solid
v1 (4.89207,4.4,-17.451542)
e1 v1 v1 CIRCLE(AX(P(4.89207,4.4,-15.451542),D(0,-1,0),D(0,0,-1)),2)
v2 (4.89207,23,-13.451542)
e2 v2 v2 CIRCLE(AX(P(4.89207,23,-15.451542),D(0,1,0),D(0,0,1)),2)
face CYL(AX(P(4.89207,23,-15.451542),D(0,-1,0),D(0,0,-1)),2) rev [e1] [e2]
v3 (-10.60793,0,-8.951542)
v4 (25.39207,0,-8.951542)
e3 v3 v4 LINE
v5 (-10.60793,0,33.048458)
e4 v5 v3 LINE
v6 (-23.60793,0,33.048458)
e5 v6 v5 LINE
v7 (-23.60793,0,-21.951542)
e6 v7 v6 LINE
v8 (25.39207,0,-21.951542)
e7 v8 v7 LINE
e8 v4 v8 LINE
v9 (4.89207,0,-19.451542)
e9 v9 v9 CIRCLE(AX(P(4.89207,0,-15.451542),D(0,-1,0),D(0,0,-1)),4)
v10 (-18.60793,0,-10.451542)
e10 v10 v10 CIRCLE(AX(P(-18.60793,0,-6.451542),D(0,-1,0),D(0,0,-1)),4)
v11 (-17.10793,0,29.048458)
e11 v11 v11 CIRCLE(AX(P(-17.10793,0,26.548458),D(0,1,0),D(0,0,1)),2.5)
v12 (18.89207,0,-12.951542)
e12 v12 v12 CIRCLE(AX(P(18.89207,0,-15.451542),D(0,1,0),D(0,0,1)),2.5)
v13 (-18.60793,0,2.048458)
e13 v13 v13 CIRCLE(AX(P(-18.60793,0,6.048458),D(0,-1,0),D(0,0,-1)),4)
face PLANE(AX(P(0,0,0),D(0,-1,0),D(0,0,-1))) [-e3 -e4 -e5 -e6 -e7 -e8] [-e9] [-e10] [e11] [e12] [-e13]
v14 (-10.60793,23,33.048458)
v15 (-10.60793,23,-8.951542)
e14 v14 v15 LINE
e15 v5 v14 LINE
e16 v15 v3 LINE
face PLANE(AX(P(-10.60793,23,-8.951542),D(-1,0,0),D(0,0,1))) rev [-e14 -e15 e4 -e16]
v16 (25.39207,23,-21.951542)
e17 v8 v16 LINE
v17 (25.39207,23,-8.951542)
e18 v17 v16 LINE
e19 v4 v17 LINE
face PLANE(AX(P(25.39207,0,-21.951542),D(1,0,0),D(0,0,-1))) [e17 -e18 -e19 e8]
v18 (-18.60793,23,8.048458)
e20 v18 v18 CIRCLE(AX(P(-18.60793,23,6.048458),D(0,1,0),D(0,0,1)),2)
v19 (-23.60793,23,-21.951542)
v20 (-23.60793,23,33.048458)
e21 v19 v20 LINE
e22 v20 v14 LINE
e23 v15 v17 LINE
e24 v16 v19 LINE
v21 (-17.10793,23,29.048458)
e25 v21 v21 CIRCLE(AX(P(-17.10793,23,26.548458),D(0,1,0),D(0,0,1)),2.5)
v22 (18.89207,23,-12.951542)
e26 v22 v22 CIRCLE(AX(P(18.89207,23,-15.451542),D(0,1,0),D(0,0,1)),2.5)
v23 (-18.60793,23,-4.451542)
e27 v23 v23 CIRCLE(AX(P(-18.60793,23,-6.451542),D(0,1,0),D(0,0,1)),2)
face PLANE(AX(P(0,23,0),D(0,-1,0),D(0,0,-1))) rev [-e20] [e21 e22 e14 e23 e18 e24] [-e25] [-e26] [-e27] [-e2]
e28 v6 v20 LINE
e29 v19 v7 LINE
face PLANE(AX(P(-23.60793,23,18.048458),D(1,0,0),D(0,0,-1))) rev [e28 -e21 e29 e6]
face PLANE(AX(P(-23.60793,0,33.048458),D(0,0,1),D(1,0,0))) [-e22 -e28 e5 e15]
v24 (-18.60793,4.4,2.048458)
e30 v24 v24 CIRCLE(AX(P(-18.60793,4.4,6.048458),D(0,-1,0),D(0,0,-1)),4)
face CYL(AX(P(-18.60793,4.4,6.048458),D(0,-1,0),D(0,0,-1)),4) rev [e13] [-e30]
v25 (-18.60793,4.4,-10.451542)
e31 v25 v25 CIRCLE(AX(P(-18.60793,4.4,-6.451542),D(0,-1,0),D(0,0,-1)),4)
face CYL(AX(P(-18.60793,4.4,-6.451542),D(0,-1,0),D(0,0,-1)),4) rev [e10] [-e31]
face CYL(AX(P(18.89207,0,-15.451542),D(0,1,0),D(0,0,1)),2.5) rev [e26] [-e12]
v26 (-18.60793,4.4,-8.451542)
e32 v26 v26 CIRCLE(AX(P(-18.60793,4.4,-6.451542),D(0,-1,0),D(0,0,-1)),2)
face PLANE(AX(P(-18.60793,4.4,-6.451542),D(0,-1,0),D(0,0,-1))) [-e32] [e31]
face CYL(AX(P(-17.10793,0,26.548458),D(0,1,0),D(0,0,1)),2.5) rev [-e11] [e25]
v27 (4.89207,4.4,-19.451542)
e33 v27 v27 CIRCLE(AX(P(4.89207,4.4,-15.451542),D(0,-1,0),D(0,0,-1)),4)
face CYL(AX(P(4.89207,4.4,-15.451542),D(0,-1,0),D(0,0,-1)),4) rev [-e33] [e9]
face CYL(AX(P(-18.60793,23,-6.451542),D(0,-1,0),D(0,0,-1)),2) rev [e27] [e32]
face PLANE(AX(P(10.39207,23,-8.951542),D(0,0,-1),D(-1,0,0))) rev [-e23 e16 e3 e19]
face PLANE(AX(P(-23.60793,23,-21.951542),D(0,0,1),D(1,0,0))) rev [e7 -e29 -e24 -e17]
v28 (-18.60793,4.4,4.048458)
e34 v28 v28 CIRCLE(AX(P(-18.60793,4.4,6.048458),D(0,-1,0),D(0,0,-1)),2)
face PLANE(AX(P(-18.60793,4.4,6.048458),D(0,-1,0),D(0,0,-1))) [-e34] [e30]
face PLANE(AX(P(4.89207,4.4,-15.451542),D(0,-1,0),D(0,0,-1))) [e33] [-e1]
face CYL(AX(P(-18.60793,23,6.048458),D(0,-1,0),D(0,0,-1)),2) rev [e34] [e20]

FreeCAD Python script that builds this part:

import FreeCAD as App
import Part
import Sketcher

V = App.Vector


def add_polygon(sketch, points):
    """Adds a closed chain of lines whose ends are joined by coincident constraints."""
    first, n = sketch.GeometryCount, len(points)
    for a, b in zip(points, points[1:] + points[:1]):
        sketch.addGeometry(Part.LineSegment(App.Vector(*a, 0), App.Vector(*b, 0)), False)
    for i in range(n):
        sketch.addConstraint(Sketcher.Constraint("Coincident", first + i, 2, first + (i + 1) % n, 1))

doc = App.newDocument("Part")
body = doc.addObject("PartDesign::Body", "Body")

sketch1 = body.newObject("Sketcher::SketchObject", "Sketch")
sketch1.AttachmentSupport = (doc.getObject("XZ_Plane"), [""])
sketch1.MapMode = "FlatFace"
add_polygon(sketch1, [(-23.6, -22), (-23.6, 18), (-10.6, 18), (-10.6, -9), (10.4, -9), (10.4, -22)])
sketch1.addGeometry(Part.Circle(V(-18.6, 6, 0), V(0, 0, 1), 2), False)
sketch1.addGeometry(Part.Circle(V(4.9, -15.5, 0), V(0, 0, 1), 2), False)
sketch1.addGeometry(Part.Circle(V(-18.6, -6.5, 0), V(0, 0, 1), 2), False)
sketch1.addConstraint([
    Sketcher.Constraint("Vertical", 0),
    Sketcher.Constraint("Horizontal", 1),
    Sketcher.Constraint("Vertical", 2),
    Sketcher.Constraint("Horizontal", 3),
    Sketcher.Constraint("Vertical", 4),
    Sketcher.Constraint("Horizontal", 5),
    Sketcher.Constraint("Equal", 6, 7),
    Sketcher.Constraint("Equal", 7, 8),
    Sketcher.Constraint("Vertical", 6, 3, 8, 3),
    Sketcher.Constraint("Equal", 1, 4),
    Sketcher.Constraint("Diameter", 6, 4.0),
    Sketcher.Constraint("DistanceX", 1, 1, 1, 2, 13.0),
    Sketcher.Constraint("DistanceX", 3, 1, 3, 2, 21.0),
    Sketcher.Constraint("DistanceY", 0, 1, 0, 2, 40.0),
    Sketcher.Constraint("DistanceY", 7, 3, 8, 3, 9.0),
    Sketcher.Constraint("DistanceX", 0, 2, 6, 3, 5.0),
    Sketcher.Constraint("DistanceY", 6, 3, 0, 2, 12.0),
    Sketcher.Constraint("DistanceX", 6, 3, 7, 3, 23.5),
    Sketcher.Constraint("DistanceY", 7, 3, 6, 3, 21.5),
    Sketcher.Constraint("DistanceX", 6, 3, -1, 1, 18.60793),
    Sketcher.Constraint("DistanceY", -1, 1, 6, 3, 6.048458),
])
pad1 = body.newObject("PartDesign::Pad", "Pad")
pad1.Profile = sketch1
pad1.Length = 23
pad1.Reversed = True

sketch2 = body.newObject("Sketcher::SketchObject", "Sketch001")
sketch2.AttachmentSupport = (doc.getObject("XZ_Plane"), [""])
sketch2.MapMode = "FlatFace"
sketch2.AttachmentOffset = App.Placement(V(0, 0, -23), App.Rotation())
add_polygon(sketch2, [(10, -22), (10, -9), (25, -9), (25, -22)])
add_polygon(sketch2, [(-24, 18), (-24, 33), (-11, 33), (-11, 18)])
sketch2.addConstraint([
    Sketcher.Constraint("Vertical", 0),
    Sketcher.Constraint("Horizontal", 1),
    Sketcher.Constraint("Vertical", 2),
    Sketcher.Constraint("Horizontal", 3),
    Sketcher.Constraint("Vertical", 4),
    Sketcher.Constraint("Horizontal", 5),
    Sketcher.Constraint("Vertical", 6),
    Sketcher.Constraint("Horizontal", 7),
    Sketcher.Constraint("Equal", 7, 0),
    Sketcher.Constraint("Equal", 3, 4),
    Sketcher.Constraint("DistanceX", 1, 1, 1, 2, 15.0),
    Sketcher.Constraint("DistanceX", 5, 1, 5, 2, 13.0),
    Sketcher.Constraint("DistanceX", 4, 2, 0, 2, 34.0),
    Sketcher.Constraint("DistanceY", 0, 2, 4, 2, 42.0),
    Sketcher.Constraint("DistanceX", -1, 1, 0, 2, 10.39207),
    Sketcher.Constraint("DistanceY", 0, 2, -1, 1, 8.951542),
])
pad2 = body.newObject("PartDesign::Pad", "Pad001")
pad2.Profile = sketch2
pad2.Length = 23

sketch3 = body.newObject("Sketcher::SketchObject", "Sketch002")
sketch3.AttachmentSupport = (doc.getObject("XZ_Plane"), [""])
sketch3.MapMode = "FlatFace"
sketch3.AttachmentOffset = App.Placement(V(0, 0, -23), App.Rotation())
sketch3.addGeometry([
    Part.Circle(V(18.9, -15.5, 0), V(0, 0, 1), 2.5),
    Part.Circle(V(-17.1, 26.5, 0), V(0, 0, 1), 2.5),
], False)
sketch3.addConstraint([
    Sketcher.Constraint("Equal", 0, 1),
    Sketcher.Constraint("Diameter", 0, 5.0),
    Sketcher.Constraint("DistanceX", 1, 3, 0, 3, 36.0),
    Sketcher.Constraint("DistanceY", 0, 3, 1, 3, 42.0),
    Sketcher.Constraint("DistanceX", -1, 1, 0, 3, 18.89207),
    Sketcher.Constraint("DistanceY", 0, 3, -1, 1, 15.451542),
])
pocket1 = body.newObject("PartDesign::Pocket", "Pocket")
pocket1.Profile = sketch3
pocket1.Length = 23
pocket1.Reversed = True

sketch4 = body.newObject("Sketcher::SketchObject", "Sketch003")
sketch4.AttachmentSupport = (doc.getObject("XZ_Plane"), [""])
sketch4.MapMode = "FlatFace"
sketch4.addGeometry([
    Part.Circle(V(-18.6, 6, 0), V(0, 0, 1), 4),
    Part.Circle(V(-18.6, -6.5, 0), V(0, 0, 1), 4),
    Part.Circle(V(4.9, -15.5, 0), V(0, 0, 1), 4),
], False)
sketch4.addConstraint([
    Sketcher.Constraint("Equal", 0, 1),
    Sketcher.Constraint("Equal", 1, 2),
    Sketcher.Constraint("Vertical", 0, 3, 1, 3),
    Sketcher.Constraint("Diameter", 0, 8.0),
    Sketcher.Constraint("DistanceY", 2, 3, 1, 3, 9.0),
    Sketcher.Constraint("DistanceY", 1, 3, 0, 3, 12.5),
    Sketcher.Constraint("DistanceX", 1, 3, 2, 3, 23.5),
    Sketcher.Constraint("DistanceX", 0, 3, -1, 1, 18.60793),
    Sketcher.Constraint("DistanceY", -1, 1, 0, 3, 6.048458),
])
pocket2 = body.newObject("PartDesign::Pocket", "Pocket001")
pocket2.Profile = sketch4
pocket2.Length = 4.4

doc.recompute()
